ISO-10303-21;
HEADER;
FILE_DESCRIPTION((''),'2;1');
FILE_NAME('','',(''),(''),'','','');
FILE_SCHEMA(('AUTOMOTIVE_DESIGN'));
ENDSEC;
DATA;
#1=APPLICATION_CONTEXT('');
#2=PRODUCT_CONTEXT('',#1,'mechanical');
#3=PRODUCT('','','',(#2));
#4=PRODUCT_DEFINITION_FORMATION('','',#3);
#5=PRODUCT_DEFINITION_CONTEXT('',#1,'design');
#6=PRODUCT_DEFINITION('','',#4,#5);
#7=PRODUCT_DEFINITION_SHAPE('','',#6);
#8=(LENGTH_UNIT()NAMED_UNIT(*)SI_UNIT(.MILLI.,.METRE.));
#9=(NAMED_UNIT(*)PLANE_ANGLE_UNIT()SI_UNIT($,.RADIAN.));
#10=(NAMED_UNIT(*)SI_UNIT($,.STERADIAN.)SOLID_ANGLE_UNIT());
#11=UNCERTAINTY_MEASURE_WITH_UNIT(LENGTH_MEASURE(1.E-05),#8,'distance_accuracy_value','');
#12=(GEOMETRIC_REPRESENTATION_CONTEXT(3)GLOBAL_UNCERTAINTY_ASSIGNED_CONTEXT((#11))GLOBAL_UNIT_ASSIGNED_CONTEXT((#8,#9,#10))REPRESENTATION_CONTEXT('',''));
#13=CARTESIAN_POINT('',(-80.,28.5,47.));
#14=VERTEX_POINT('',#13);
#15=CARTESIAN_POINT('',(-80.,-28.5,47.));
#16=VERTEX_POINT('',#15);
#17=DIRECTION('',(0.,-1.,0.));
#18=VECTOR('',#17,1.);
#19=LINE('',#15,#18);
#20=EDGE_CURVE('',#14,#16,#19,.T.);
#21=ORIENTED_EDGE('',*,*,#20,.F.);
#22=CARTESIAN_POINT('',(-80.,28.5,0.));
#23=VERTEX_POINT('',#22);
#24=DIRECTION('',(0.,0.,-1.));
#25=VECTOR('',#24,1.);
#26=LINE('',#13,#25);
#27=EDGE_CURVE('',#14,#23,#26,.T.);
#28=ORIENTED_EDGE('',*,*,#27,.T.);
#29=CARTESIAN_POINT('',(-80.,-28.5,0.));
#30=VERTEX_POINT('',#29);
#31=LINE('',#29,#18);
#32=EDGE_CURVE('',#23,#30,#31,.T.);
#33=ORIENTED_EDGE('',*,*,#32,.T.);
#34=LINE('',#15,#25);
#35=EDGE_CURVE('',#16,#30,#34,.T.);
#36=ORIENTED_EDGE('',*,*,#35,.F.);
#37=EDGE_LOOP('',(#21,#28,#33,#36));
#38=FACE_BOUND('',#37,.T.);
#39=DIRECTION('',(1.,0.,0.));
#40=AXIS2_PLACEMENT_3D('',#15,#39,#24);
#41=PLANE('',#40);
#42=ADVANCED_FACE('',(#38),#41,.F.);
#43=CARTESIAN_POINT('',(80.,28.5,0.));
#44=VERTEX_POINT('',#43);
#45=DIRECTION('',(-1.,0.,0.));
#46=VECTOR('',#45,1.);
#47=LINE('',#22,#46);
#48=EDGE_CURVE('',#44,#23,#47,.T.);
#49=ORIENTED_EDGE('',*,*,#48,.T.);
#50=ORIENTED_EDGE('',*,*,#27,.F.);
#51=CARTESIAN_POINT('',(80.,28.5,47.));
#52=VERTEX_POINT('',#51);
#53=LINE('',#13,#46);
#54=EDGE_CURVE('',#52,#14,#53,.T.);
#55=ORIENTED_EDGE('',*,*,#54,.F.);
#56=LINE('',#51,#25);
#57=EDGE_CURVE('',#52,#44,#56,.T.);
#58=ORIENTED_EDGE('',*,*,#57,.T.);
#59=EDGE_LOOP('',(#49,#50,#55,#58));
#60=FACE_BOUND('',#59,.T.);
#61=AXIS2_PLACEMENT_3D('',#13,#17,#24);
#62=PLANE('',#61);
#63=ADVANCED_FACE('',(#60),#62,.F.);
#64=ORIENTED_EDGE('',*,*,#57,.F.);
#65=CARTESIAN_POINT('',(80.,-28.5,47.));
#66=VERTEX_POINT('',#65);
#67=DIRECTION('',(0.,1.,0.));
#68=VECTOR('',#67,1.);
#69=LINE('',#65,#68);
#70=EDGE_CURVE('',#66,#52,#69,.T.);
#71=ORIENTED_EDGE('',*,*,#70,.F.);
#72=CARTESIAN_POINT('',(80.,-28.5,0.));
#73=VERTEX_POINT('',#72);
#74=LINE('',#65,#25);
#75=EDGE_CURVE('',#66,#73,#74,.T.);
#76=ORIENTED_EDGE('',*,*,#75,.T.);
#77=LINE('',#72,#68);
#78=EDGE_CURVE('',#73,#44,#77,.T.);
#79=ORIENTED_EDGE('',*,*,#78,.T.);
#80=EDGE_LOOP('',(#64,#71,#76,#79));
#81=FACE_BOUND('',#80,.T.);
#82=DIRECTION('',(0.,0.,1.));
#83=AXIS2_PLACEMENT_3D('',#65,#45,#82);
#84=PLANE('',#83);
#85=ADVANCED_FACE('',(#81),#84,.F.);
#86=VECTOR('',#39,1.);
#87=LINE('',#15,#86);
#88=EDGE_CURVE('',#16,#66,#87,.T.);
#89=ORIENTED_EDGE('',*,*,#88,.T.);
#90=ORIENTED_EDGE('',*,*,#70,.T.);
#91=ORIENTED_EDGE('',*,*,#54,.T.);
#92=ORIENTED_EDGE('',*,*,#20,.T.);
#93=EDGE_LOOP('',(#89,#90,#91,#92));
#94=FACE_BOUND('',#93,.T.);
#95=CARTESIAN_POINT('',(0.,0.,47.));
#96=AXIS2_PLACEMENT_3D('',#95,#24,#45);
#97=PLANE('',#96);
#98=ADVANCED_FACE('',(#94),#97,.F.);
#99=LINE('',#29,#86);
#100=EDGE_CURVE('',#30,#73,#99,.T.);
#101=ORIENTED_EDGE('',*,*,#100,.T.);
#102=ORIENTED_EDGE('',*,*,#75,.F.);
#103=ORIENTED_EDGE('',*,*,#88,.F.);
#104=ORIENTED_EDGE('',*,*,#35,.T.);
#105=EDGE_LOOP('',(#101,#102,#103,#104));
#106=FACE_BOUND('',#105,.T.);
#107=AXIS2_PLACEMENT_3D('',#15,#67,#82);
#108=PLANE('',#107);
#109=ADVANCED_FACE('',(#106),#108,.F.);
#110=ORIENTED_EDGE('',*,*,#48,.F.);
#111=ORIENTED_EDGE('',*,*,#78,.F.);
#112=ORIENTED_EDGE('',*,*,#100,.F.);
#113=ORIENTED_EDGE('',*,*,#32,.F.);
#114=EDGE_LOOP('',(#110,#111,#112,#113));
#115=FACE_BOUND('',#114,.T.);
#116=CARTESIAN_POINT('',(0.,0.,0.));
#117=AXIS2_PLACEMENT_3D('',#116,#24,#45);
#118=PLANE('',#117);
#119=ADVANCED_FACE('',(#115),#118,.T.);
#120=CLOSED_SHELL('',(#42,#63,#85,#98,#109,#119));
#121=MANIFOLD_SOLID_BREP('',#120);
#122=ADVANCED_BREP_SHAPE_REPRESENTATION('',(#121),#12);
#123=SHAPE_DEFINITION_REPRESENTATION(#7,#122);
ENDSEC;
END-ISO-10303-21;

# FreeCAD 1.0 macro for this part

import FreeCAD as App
import Part
import Sketcher

V = App.Vector


def add_polygon(sketch, points):
    """Adds a closed chain of lines whose ends are joined by coincident constraints."""
    first, n = sketch.GeometryCount, len(points)
    for a, b in zip(points, points[1:] + points[:1]):
        sketch.addGeometry(Part.LineSegment(App.Vector(*a, 0), App.Vector(*b, 0)), False)
    for i in range(n):
        sketch.addConstraint(Sketcher.Constraint("Coincident", first + i, 2, first + (i + 1) % n, 1))

doc = App.newDocument("Part")
body = doc.addObject("PartDesign::Body", "Body")

# Sketch on XY plane
sketch1 = body.newObject("Sketcher::SketchObject", "Sketch")
sketch1.AttachmentSupport = (doc.getObject("XY_Plane"), [""])
sketch1.MapMode = "FlatFace"
add_polygon(sketch1, [(-80, 28.5), (-80, -28.5), (80, -28.5), (80, 28.5)])  # lines 0-3
sketch1.addConstraint(Sketcher.Constraint("Vertical", 0))
sketch1.addConstraint(Sketcher.Constraint("Horizontal", 1))
sketch1.addConstraint(Sketcher.Constraint("Vertical", 2))
sketch1.addConstraint(Sketcher.Constraint("Horizontal", 3))
sketch1.addConstraint(Sketcher.Constraint("Symmetric", 0, 2, 2, 2, -1, 1))
sketch1.addConstraint(Sketcher.Constraint("DistanceX", 1, 1, 1, 2, 160.0))
sketch1.addConstraint(Sketcher.Constraint("DistanceY", 0, 2, 0, 1, 57.0))
pad1 = body.newObject("PartDesign::Pad", "Pad")
pad1.Profile = sketch1
pad1.Length = 47

doc.recompute()
